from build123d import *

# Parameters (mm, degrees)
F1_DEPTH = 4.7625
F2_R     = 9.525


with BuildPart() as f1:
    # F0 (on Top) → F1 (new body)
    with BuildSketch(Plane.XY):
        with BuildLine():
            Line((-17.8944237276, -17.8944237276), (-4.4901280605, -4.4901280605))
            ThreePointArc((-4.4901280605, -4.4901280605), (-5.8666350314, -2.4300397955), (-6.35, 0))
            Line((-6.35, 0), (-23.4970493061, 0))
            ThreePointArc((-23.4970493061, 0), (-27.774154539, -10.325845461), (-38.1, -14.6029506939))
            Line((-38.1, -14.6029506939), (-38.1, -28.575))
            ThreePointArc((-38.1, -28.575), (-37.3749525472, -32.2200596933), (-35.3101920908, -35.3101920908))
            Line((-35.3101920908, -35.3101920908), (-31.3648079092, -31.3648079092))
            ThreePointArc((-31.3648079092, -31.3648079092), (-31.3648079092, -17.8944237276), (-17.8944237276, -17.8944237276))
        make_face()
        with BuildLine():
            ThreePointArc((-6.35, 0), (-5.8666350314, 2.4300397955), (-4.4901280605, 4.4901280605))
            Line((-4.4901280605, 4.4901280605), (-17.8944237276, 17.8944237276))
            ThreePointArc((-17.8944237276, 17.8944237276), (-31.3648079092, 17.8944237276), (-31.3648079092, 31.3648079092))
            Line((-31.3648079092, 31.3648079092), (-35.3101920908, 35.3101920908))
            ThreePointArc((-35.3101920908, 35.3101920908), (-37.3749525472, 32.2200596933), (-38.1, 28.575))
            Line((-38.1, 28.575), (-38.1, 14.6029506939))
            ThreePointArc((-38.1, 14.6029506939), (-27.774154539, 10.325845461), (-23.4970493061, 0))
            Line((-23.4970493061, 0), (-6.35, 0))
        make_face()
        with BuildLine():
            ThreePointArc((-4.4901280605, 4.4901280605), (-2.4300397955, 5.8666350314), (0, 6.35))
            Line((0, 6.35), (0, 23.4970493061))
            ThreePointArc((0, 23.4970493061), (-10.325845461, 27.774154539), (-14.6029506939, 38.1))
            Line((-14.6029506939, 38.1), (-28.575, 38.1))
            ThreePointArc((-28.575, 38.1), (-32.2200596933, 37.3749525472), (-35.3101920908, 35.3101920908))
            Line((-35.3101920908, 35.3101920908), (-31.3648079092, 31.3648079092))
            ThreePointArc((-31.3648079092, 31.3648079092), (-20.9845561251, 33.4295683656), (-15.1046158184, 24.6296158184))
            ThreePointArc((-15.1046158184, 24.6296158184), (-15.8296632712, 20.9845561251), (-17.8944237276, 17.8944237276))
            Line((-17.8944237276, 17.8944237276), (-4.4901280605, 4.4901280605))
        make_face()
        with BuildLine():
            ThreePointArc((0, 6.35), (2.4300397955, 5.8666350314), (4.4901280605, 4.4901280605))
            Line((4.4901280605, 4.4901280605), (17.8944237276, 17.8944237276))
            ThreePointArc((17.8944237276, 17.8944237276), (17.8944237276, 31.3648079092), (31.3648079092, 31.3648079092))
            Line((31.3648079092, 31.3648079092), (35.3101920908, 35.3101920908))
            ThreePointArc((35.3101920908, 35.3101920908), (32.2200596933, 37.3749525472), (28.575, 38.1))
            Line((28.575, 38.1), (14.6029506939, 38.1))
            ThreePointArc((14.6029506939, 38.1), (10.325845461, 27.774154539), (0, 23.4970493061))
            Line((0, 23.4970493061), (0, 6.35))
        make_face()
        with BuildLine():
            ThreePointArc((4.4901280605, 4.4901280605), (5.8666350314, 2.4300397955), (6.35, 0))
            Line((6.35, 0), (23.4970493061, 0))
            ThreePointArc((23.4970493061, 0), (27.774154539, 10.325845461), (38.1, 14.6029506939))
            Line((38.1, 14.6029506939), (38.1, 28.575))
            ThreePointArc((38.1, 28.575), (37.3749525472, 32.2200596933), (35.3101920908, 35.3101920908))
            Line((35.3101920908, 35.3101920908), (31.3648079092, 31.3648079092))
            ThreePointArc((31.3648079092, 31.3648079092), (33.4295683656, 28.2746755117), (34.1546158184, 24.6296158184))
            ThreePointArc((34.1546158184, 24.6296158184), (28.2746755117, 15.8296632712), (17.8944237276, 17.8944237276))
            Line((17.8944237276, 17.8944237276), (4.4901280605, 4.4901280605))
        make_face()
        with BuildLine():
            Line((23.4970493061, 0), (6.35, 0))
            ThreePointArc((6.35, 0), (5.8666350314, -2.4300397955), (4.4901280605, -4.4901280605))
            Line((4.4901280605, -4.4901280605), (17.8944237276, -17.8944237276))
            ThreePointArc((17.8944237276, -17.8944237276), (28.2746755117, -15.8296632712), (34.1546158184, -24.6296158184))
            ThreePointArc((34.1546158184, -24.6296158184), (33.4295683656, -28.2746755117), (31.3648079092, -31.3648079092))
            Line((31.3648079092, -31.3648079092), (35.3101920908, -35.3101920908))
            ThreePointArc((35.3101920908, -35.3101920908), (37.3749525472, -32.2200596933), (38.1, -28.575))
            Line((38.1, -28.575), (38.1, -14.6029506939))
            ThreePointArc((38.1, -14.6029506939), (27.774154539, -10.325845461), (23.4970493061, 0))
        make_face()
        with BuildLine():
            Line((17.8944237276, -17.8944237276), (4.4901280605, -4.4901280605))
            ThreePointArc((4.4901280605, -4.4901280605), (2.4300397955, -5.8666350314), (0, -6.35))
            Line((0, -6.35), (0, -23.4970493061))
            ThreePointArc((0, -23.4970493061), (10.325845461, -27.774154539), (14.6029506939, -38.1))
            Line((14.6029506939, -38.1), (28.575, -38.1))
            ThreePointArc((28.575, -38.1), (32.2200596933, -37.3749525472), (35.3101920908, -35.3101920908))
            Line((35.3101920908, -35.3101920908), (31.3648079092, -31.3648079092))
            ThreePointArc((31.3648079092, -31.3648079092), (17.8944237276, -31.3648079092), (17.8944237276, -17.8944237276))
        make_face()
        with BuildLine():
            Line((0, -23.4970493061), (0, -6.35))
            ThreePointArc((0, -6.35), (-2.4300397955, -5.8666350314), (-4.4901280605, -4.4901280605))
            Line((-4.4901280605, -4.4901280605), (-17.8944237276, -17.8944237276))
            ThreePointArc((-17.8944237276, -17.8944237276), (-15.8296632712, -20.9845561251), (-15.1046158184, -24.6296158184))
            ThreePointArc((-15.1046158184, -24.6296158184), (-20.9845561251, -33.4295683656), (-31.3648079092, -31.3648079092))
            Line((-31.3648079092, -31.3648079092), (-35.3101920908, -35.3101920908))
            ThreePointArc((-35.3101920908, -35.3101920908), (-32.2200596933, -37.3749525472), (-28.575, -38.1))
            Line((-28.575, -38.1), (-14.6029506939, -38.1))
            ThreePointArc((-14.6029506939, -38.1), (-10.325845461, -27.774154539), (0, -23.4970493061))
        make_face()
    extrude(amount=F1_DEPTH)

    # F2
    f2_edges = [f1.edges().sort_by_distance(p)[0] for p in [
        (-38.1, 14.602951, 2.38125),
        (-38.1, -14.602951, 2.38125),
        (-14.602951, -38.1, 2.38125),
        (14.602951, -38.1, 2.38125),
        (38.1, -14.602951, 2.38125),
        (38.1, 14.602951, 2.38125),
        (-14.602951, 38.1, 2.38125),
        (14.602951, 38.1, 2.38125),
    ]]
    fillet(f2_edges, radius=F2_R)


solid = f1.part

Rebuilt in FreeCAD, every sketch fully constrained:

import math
import FreeCAD as App
import Part
import Sketcher
Q = App.Units.Quantity


def edges_at(feature, points):
    """Names of the edges that pass closest to the given points."""
    edges = feature.Shape.Edges
    near = lambda p: min(range(len(edges)), key=lambda i: edges[i].distToShape(Part.Vertex(*p))[0])
    return sorted({f"Edge{near(p) + 1}" for p in points})

doc = App.newDocument("Part")
params = doc.addObject("Spreadsheet::Sheet", "Params")
for row, (alias, value) in enumerate([
    ("sketch1_radius", "0.25 in"),
    ("sketch1_radius2", "0.375 in"),
    ("pad1_length", "0.1875 in"),
    ("fillet_radius", "0.375 in"),
], start=1):
    params.set(f"A{row}", alias)
    params.set(f"B{row}", "=" + value)
    params.setAlias(f"B{row}", alias)

body = doc.addObject("PartDesign::Body", "Body")

# Sketch on XY plane
sketch1 = body.newObject("Sketcher::SketchObject", "Sketch")
sketch1.AttachmentSupport = (doc.getObject("XY_Plane"), [""])
sketch1.MapMode = "FlatFace"
sketch1.addGeometry([
    Part.ArcOfCircle(Part.Circle(App.Vector(0, -38.1, 0), App.Vector(0, 0, 1), 14.602951), math.radians(0), math.radians(90)),  # 0
    Part.LineSegment(App.Vector(14.602951, -38.1, 0), App.Vector(28.575, -38.1, 0)),  # 1
    Part.ArcOfCircle(Part.Circle(App.Vector(28.575, -28.575, 0), App.Vector(0, 0, 1), 9.525), math.radians(-90), math.radians(-45)),  # 2
    Part.ArcOfCircle(Part.Circle(App.Vector(28.575, -28.575, 0), App.Vector(0, 0, 1), 9.525), math.radians(-45), math.radians(0)),  # 3
    Part.LineSegment(App.Vector(38.1, -28.575, 0), App.Vector(38.1, -14.602951, 0)),  # 4
    Part.ArcOfCircle(Part.Circle(App.Vector(38.1, 0, 0), App.Vector(0, 0, 1), 14.602951), math.radians(180), math.radians(270)),  # 5
    Part.ArcOfCircle(Part.Circle(App.Vector(38.1, 0, 0), App.Vector(0, 0, 1), 14.602951), math.radians(90), math.radians(180)),  # 6
    Part.LineSegment(App.Vector(38.1, 14.602951, 0), App.Vector(38.1, 28.575, 0)),  # 7
    Part.ArcOfCircle(Part.Circle(App.Vector(28.575, 28.575, 0), App.Vector(0, 0, 1), 9.525), math.radians(0), math.radians(45)),  # 8
    Part.ArcOfCircle(Part.Circle(App.Vector(28.575, 28.575, 0), App.Vector(0, 0, 1), 9.525), math.radians(45), math.radians(90)),  # 9
    Part.LineSegment(App.Vector(28.575, 38.1, 0), App.Vector(14.602951, 38.1, 0)),  # 10
    Part.ArcOfCircle(Part.Circle(App.Vector(0, 38.1, 0), App.Vector(0, 0, 1), 14.602951), math.radians(-90), math.radians(0)),  # 11
    Part.ArcOfCircle(Part.Circle(App.Vector(0, 38.1, 0), App.Vector(0, 0, 1), 14.602951), math.radians(180), math.radians(270)),  # 12
    Part.LineSegment(App.Vector(-14.602951, 38.1, 0), App.Vector(-28.575, 38.1, 0)),  # 13
    Part.ArcOfCircle(Part.Circle(App.Vector(-28.575, 28.575, 0), App.Vector(0, 0, 1), 9.525), math.radians(90), math.radians(135)),  # 14
    Part.ArcOfCircle(Part.Circle(App.Vector(-28.575, 28.575, 0), App.Vector(0, 0, 1), 9.525), math.radians(135), math.radians(180)),  # 15
    Part.LineSegment(App.Vector(-38.1, 28.575, 0), App.Vector(-38.1, 14.602951, 0)),  # 16
    Part.ArcOfCircle(Part.Circle(App.Vector(-38.1, 0, 0), App.Vector(0, 0, 1), 14.602951), math.radians(0), math.radians(90)),  # 17
    Part.ArcOfCircle(Part.Circle(App.Vector(-38.1, 0, 0), App.Vector(0, 0, 1), 14.602951), math.radians(-90), math.radians(0)),  # 18
    Part.LineSegment(App.Vector(-38.1, -14.602951, 0), App.Vector(-38.1, -28.575, 0)),  # 19
    Part.ArcOfCircle(Part.Circle(App.Vector(-28.575, -28.575, 0), App.Vector(0, 0, 1), 9.525), math.radians(180), math.radians(225)),  # 20
    Part.ArcOfCircle(Part.Circle(App.Vector(-28.575, -28.575, 0), App.Vector(0, 0, 1), 9.525), math.radians(-135), math.radians(-90)),  # 21
    Part.LineSegment(App.Vector(-28.575, -38.1, 0), App.Vector(-14.602951, -38.1, 0)),  # 22
    Part.ArcOfCircle(Part.Circle(App.Vector(0, -38.1, 0), App.Vector(0, 0, 1), 14.602951), math.radians(90), math.radians(180)),  # 23
    Part.ArcOfCircle(Part.Circle(App.Vector(0, 0, 0), App.Vector(0, 0, 1), 6.35), math.radians(180), math.radians(225)),  # 24
    Part.ArcOfCircle(Part.Circle(App.Vector(0, 0, 0), App.Vector(0, 0, 1), 6.35), math.radians(135), math.radians(180)),  # 25
    Part.ArcOfCircle(Part.Circle(App.Vector(0, 0, 0), App.Vector(0, 0, 1), 6.35), math.radians(90), math.radians(135)),  # 26
    Part.ArcOfCircle(Part.Circle(App.Vector(0, 0, 0), App.Vector(0, 0, 1), 6.35), math.radians(45), math.radians(90)),  # 27
    Part.ArcOfCircle(Part.Circle(App.Vector(0, 0, 0), App.Vector(0, 0, 1), 6.35), math.radians(0), math.radians(45)),  # 28
    Part.ArcOfCircle(Part.Circle(App.Vector(0, 0, 0), App.Vector(0, 0, 1), 6.35), math.radians(-45), math.radians(0)),  # 29
    Part.ArcOfCircle(Part.Circle(App.Vector(0, 0, 0), App.Vector(0, 0, 1), 6.35), math.radians(-90), math.radians(-45)),  # 30
    Part.ArcOfCircle(Part.Circle(App.Vector(0, 0, 0), App.Vector(0, 0, 1), 6.35), math.radians(-135), math.radians(-90)),  # 31
    Part.ArcOfCircle(Part.Circle(App.Vector(-24.629616, -24.629616, 0), App.Vector(0, 0, 1), 9.525), math.radians(45), math.radians(225)),  # 32
    Part.ArcOfCircle(Part.Circle(App.Vector(-24.629616, -24.629616, 0), App.Vector(0, 0, 1), 9.525), math.radians(0), math.radians(45)),  # 33
    Part.ArcOfCircle(Part.Circle(App.Vector(-24.629616, -24.629616, 0), App.Vector(0, 0, 1), 9.525), math.radians(-135), math.radians(0)),  # 34
    Part.ArcOfCircle(Part.Circle(App.Vector(24.629616, -24.629616, 0), App.Vector(0, 0, 1), 9.525), math.radians(0), math.radians(135)),  # 35
    Part.ArcOfCircle(Part.Circle(App.Vector(24.629616, -24.629616, 0), App.Vector(0, 0, 1), 9.525), math.radians(-45), math.radians(0)),  # 36
    Part.ArcOfCircle(Part.Circle(App.Vector(24.629616, -24.629616, 0), App.Vector(0, 0, 1), 9.525), math.radians(135), math.radians(315)),  # 37
    Part.ArcOfCircle(Part.Circle(App.Vector(24.629616, 24.629616, 0), App.Vector(0, 0, 1), 9.525), math.radians(45), math.radians(225)),  # 38
    Part.ArcOfCircle(Part.Circle(App.Vector(24.629616, 24.629616, 0), App.Vector(0, 0, 1), 9.525), math.radians(0), math.radians(45)),  # 39
    Part.ArcOfCircle(Part.Circle(App.Vector(24.629616, 24.629616, 0), App.Vector(0, 0, 1), 9.525), math.radians(-135), math.radians(0)),  # 40
    Part.ArcOfCircle(Part.Circle(App.Vector(-24.629616, 24.629616, 0), App.Vector(0, 0, 1), 9.525), math.radians(135), math.radians(315)),  # 41
    Part.ArcOfCircle(Part.Circle(App.Vector(-24.629616, 24.629616, 0), App.Vector(0, 0, 1), 9.525), math.radians(0), math.radians(135)),  # 42
    Part.ArcOfCircle(Part.Circle(App.Vector(-24.629616, 24.629616, 0), App.Vector(0, 0, 1), 9.525), math.radians(-45), math.radians(0)),  # 43
], False)
sketch1.addConstraint([
    Sketcher.Constraint("Coincident", 0, 1, 1, 1),
    Sketcher.Constraint("Tangent", 1, 2, 2, 1),
    Sketcher.Constraint("Tangent", 2, 2, 3, 1),
    Sketcher.Constraint("Tangent", 3, 2, 4, 1),
    Sketcher.Constraint("Coincident", 4, 2, 5, 2),
    Sketcher.Constraint("Tangent", 5, 1, 6, 2),
    Sketcher.Constraint("Coincident", 6, 1, 7, 1),
    Sketcher.Constraint("Tangent", 7, 2, 8, 1),
    Sketcher.Constraint("Tangent", 8, 2, 9, 1),
    Sketcher.Constraint("Tangent", 9, 2, 10, 1),
    Sketcher.Constraint("Coincident", 10, 2, 11, 2),
    Sketcher.Constraint("Tangent", 11, 1, 12, 2),
    Sketcher.Constraint("Coincident", 12, 1, 13, 1),
    Sketcher.Constraint("Tangent", 13, 2, 14, 1),
    Sketcher.Constraint("Tangent", 14, 2, 15, 1),
    Sketcher.Constraint("Tangent", 15, 2, 16, 1),
    Sketcher.Constraint("Coincident", 16, 2, 17, 2),
    Sketcher.Constraint("Tangent", 17, 1, 18, 2),
    Sketcher.Constraint("Coincident", 18, 1, 19, 1),
    Sketcher.Constraint("Tangent", 19, 2, 20, 1),
    Sketcher.Constraint("Tangent", 20, 2, 21, 1),
    Sketcher.Constraint("Tangent", 21, 2, 22, 1),
    Sketcher.Constraint("Coincident", 22, 2, 23, 2),
    Sketcher.Constraint("Tangent", 23, 1, 0, 2),
    Sketcher.Constraint("Tangent", 24, 1, 25, 2),
    Sketcher.Constraint("Tangent", 25, 1, 26, 2),
    Sketcher.Constraint("Tangent", 26, 1, 27, 2),
    Sketcher.Constraint("Tangent", 27, 1, 28, 2),
    Sketcher.Constraint("Tangent", 28, 1, 29, 2),
    Sketcher.Constraint("Tangent", 29, 1, 30, 2),
    Sketcher.Constraint("Tangent", 30, 1, 31, 2),
    Sketcher.Constraint("Tangent", 31, 1, 24, 2),
    Sketcher.Constraint("Tangent", 32, 1, 33, 2),
    Sketcher.Constraint("Tangent", 33, 1, 34, 2),
    Sketcher.Constraint("Tangent", 34, 1, 32, 2),
    Sketcher.Constraint("Tangent", 35, 1, 36, 2),
    Sketcher.Constraint("Tangent", 36, 1, 37, 2),
    Sketcher.Constraint("Tangent", 37, 1, 35, 2),
    Sketcher.Constraint("Tangent", 38, 1, 39, 2),
    Sketcher.Constraint("Tangent", 39, 1, 40, 2),
    Sketcher.Constraint("Tangent", 40, 1, 38, 2),
    Sketcher.Constraint("Tangent", 41, 1, 42, 2),
    Sketcher.Constraint("Tangent", 42, 1, 43, 2),
    Sketcher.Constraint("Tangent", 43, 1, 41, 2),
    Sketcher.Constraint("Horizontal", 1),
    Sketcher.Constraint("Vertical", 4),
    Sketcher.Constraint("Vertical", 7),
    Sketcher.Constraint("Horizontal", 10),
    Sketcher.Constraint("Horizontal", 13),
    Sketcher.Constraint("Vertical", 16),
    Sketcher.Constraint("Vertical", 19),
    Sketcher.Constraint("Horizontal", 22),
    Sketcher.Constraint("Coincident", 24, 3, -1, 1),
    Sketcher.Constraint("Coincident", 26, 3, -1, 1),
    Sketcher.Constraint("Coincident", 28, 3, -1, 1),
    Sketcher.Constraint("Equal", 2, 3),
    Sketcher.Constraint("Equal", 0, 5),
    Sketcher.Constraint("Equal", 5, 6),
    Sketcher.Constraint("Equal", 3, 8),
    Sketcher.Constraint("Equal", 8, 9),
    Sketcher.Constraint("Equal", 6, 11),
    Sketcher.Constraint("Equal", 11, 12),
    Sketcher.Constraint("Equal", 9, 14),
    Sketcher.Constraint("Equal", 14, 15),
    Sketcher.Constraint("Equal", 12, 17),
    Sketcher.Constraint("Equal", 17, 18),
    Sketcher.Constraint("Equal", 15, 20),
    Sketcher.Constraint("Equal", 20, 21),
    Sketcher.Constraint("Equal", 18, 23),
    Sketcher.Constraint("Equal", 28, 29),
    Sketcher.Constraint("Equal", 21, 32),
    Sketcher.Constraint("Equal", 34, 35),
    Sketcher.Constraint("Equal", 37, 38),
    Sketcher.Constraint("Equal", 40, 41),
    Sketcher.Constraint("Symmetric", 0, 3, 11, 3, -1, 1),
    Sketcher.Constraint("Symmetric", 2, 3, 14, 3, -1, 1),
    Sketcher.Constraint("Symmetric", 5, 3, 17, 3, -1, 1),
    Sketcher.Constraint("Symmetric", 8, 3, 20, 3, -1, 1),
    Sketcher.Constraint("Symmetric", 32, 3, 38, 3, -1, 1),
    Sketcher.Constraint("Symmetric", 35, 3, 41, 3, -1, 1),
    Sketcher.Constraint("Symmetric", 8, 3, 14, 3, -2),
    Sketcher.Constraint("Symmetric", 32, 3, 35, 3, -2),
    Sketcher.Constraint("PointOnObject", 0, 3, -2),
    Sketcher.Constraint("PointOnObject", 5, 3, -1),
    Sketcher.Constraint("PointOnObject", 5, 1, -1),
    Sketcher.Constraint("PointOnObject", 11, 1, -2),
    Sketcher.Constraint("PointOnObject", 17, 1, -1),
    Sketcher.Constraint("PointOnObject", 23, 1, -2),
    Sketcher.Constraint("PointOnObject", 24, 1, -1),
    Sketcher.Constraint("PointOnObject", 26, 1, -2),
    Sketcher.Constraint("PointOnObject", 28, 1, -1),
    Sketcher.Constraint("PointOnObject", 30, 1, -2),
    Sketcher.Constraint("Horizontal", 23, 3, 0, 1),
    Sketcher.Constraint("Horizontal", 8, 2, 14, 2),
    Sketcher.Constraint("Horizontal", 2, 2, 20, 2),
    Sketcher.Constraint("Horizontal", 25, 1, 27, 1),
    Sketcher.Constraint("Horizontal", 29, 1, 31, 1),
    Sketcher.Constraint("Horizontal", 37, 3, 33, 1),
    Sketcher.Constraint("Horizontal", 33, 1, 35, 1),
    Sketcher.Constraint("Horizontal", 34, 1, 36, 1),
    Sketcher.Constraint("Horizontal", 32, 1, 37, 1),
    Sketcher.Constraint("Horizontal", 43, 3, 39, 1),
    Sketcher.Constraint("Horizontal", 38, 1, 41, 1),
    Sketcher.Constraint("Horizontal", 39, 1, 42, 1),
    Sketcher.Constraint("Horizontal", 40, 1, 43, 1),
    Sketcher.Constraint("Vertical", 6, 3, 3, 2),
    Sketcher.Constraint("Vertical", 2, 2, 8, 2),
    Sketcher.Constraint("Vertical", 27, 1, 29, 1),
    Sketcher.Constraint("Vertical", 36, 1, 38, 1),
    Sketcher.Constraint("Vertical", 37, 1, 40, 1),
    Sketcher.Constraint("Equal", 22, 4),
    Sketcher.Constraint("Radius", 24, Q("0.25 in")),
    Sketcher.Constraint("Radius", 2, Q("0.375 in")),
    Sketcher.Constraint("DistanceY", 0, 3, -1, 1, Q("1.5 in")),
    Sketcher.Constraint("Radius", 0, 14.602951),
    Sketcher.Constraint("DistanceX", 25, 1, -1, 1, 4.490128),
    Sketcher.Constraint("DistanceX", 32, 3, -1, 1, 24.629616),
    Sketcher.Constraint("DistanceY", 32, 3, -1, 1, 24.629616),
    Sketcher.Constraint("DistanceX", -1, 1, 2, 2, 35.310192),
    Sketcher.Constraint("DistanceX", 32, 1, -1, 1, 17.894424),
    Sketcher.Constraint("DistanceX", 34, 1, -1, 1, 31.364808),
])
sketch1.setExpression("Constraints[111]", "Params.sketch1_radius")
sketch1.setExpression("Constraints[112]", "Params.sketch1_radius2")
pad1 = body.newObject("PartDesign::Pad", "Pad")
pad1.Profile = sketch1
pad1.setExpression("Length", "Params.pad1_length")
doc.recompute()

fillet = body.newObject("PartDesign::Fillet", "Fillet")
fillet.Base = (pad1, edges_at(pad1, [
    (-38.1, 14.603, 2.381),
    (-38.1, -14.603, 2.381),
    (-14.603, -38.1, 2.381),
    (14.603, -38.1, 2.381),
    (38.1, -14.603, 2.381),
    (38.1, 14.603, 2.381),
    (-14.603, 38.1, 2.381),
    (14.603, 38.1, 2.381),
]))
fillet.setExpression("Radius", "Params.fillet_radius")

doc.recompute()
